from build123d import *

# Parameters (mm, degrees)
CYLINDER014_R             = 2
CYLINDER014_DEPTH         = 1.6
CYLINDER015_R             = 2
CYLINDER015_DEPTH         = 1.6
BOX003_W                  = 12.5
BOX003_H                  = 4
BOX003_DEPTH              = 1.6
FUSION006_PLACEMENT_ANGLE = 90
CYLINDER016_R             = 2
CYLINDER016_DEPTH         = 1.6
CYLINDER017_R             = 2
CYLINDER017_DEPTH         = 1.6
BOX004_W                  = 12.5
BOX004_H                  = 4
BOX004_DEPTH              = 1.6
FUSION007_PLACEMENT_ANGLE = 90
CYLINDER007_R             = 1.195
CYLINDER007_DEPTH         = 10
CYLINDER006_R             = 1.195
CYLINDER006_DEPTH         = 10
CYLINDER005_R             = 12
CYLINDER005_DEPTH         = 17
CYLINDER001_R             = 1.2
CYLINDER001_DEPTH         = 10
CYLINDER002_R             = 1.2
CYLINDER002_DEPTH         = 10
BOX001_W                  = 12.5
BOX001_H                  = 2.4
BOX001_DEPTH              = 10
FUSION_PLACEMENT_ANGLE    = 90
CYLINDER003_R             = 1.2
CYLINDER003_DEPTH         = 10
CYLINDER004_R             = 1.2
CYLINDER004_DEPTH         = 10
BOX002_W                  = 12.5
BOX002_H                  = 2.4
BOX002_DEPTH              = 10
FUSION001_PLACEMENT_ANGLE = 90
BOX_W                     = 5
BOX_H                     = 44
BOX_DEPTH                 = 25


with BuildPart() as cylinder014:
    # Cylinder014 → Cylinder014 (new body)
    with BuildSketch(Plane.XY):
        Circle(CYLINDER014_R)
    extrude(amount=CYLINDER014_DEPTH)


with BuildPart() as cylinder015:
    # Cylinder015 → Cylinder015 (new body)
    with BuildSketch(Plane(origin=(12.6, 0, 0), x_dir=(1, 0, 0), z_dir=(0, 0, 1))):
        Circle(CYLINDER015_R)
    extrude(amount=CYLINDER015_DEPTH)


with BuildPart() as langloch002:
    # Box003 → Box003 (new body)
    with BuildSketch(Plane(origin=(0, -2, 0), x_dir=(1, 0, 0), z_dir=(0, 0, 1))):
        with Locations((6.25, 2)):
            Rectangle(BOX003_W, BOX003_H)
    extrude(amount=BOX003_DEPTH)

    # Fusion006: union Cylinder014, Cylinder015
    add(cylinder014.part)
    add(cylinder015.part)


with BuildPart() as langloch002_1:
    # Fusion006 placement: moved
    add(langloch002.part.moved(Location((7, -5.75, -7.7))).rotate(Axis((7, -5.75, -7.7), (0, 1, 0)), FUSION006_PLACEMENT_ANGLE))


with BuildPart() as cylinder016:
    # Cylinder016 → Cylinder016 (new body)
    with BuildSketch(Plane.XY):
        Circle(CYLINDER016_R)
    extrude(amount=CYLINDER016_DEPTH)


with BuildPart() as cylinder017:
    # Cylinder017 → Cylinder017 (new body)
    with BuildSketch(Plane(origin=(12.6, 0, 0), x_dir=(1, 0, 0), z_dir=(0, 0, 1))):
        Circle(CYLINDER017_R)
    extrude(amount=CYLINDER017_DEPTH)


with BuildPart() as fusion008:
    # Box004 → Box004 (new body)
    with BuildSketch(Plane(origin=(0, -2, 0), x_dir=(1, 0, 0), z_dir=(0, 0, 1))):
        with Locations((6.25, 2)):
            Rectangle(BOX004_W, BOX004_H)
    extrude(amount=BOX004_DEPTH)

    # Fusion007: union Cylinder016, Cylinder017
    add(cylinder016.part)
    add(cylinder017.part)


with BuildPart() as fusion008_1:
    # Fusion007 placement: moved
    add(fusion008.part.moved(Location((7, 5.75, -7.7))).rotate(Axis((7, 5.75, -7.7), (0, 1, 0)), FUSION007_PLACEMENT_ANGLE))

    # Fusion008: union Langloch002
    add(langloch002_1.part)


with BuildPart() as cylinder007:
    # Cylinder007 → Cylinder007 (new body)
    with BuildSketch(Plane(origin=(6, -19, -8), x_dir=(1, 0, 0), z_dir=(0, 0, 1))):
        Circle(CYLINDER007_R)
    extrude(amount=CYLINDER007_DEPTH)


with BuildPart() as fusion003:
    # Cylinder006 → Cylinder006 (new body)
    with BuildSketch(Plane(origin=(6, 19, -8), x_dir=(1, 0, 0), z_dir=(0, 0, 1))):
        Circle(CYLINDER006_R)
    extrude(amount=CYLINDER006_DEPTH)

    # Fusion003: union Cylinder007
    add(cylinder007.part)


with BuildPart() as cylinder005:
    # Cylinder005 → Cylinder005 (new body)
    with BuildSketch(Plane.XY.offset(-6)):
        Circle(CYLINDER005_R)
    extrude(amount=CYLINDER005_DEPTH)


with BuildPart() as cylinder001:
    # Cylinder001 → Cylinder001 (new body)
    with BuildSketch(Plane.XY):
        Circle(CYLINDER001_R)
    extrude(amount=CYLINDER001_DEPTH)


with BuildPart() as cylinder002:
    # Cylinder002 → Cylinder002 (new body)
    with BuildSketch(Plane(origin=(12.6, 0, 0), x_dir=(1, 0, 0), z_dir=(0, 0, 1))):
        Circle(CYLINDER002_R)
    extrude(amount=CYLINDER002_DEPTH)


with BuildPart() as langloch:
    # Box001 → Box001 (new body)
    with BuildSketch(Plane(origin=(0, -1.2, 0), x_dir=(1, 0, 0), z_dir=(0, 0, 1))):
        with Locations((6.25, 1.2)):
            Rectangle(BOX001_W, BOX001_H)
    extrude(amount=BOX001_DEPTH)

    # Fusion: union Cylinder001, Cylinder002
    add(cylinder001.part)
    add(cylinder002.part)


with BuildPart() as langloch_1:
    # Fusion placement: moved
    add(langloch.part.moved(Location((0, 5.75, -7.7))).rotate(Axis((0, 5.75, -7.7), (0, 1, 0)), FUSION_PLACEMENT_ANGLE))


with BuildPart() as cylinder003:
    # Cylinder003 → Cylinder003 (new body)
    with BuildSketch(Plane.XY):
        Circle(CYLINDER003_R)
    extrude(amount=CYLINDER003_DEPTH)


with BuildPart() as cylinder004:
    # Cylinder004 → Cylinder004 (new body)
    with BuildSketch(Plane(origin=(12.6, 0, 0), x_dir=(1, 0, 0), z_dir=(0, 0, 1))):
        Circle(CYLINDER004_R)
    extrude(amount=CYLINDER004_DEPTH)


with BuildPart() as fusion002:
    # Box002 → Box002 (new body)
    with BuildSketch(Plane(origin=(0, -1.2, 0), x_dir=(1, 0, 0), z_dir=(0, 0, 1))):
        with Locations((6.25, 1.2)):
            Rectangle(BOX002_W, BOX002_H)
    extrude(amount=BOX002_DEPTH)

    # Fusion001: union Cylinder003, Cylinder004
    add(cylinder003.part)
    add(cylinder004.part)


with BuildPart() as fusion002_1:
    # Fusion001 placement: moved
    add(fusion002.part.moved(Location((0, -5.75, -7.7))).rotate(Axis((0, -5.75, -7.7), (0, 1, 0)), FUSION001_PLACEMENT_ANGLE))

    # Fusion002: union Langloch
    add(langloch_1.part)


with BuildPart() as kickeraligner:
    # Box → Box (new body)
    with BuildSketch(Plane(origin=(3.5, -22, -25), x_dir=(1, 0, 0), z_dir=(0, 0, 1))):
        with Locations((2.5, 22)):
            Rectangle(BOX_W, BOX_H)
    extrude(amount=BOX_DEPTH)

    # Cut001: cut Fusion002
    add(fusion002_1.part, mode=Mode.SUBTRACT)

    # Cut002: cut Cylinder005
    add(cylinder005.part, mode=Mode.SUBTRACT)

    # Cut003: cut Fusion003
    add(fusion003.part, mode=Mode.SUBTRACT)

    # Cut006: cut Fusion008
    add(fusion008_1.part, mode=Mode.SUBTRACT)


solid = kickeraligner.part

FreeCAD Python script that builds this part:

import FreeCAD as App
import Part
import Sketcher
from FreeCAD import Vector

doc = App.newDocument("Part")
params = doc.addObject("Spreadsheet::Sheet", "Params")
for row, (alias, value) in enumerate([
    ("sketch1_diameter", "4 mm"),
    ("pad1_length", "1.6 mm"),
    ("sketch2_diameter", "4 mm"),
    ("pad2_length", "1.6 mm"),
    ("sketch3_height", "4 mm"),
    ("sketch3_width", "12.5 mm"),
    ("pad3_length", "1.6 mm"),
    ("sketch4_diameter", "4 mm"),
    ("pad4_length", "1.6 mm"),
    ("sketch5_diameter", "4 mm"),
    ("pad5_length", "1.6 mm"),
    ("sketch6_height", "4 mm"),
    ("sketch6_width", "12.5 mm"),
    ("pad6_length", "1.6 mm"),
    ("sketch7_diameter", "2.39 mm"),
    ("pad7_length", "10 mm"),
    ("sketch8_diameter", "2.39 mm"),
    ("pad8_length", "10 mm"),
    ("sketch9_diameter", "24 mm"),
    ("pad9_length", "17 mm"),
    ("sketch10_diameter", "2.4 mm"),
    ("pad10_length", "10 mm"),
    ("sketch11_diameter", "2.4 mm"),
    ("pad11_length", "10 mm"),
    ("sketch12_width", "12.5 mm"),
    ("sketch12_height", "2.4 mm"),
    ("pad12_length", "10 mm"),
    ("sketch13_diameter", "2.4 mm"),
    ("pad13_length", "10 mm"),
    ("sketch14_diameter", "2.4 mm"),
    ("pad14_length", "10 mm"),
    ("sketch15_width", "12.5 mm"),
    ("sketch15_height", "2.4 mm"),
    ("pad15_length", "10 mm"),
    ("sketch16_width", "5 mm"),
    ("sketch16_height", "44 mm"),
    ("pad16_length", "25 mm"),
], start=1):
    params.set(f"A{row}", alias)
    params.set(f"B{row}", "=" + value)
    params.setAlias(f"B{row}", alias)

body = doc.addObject("PartDesign::Body", "Body")

# Sketch on XY plane
sketch1 = body.newObject("Sketcher::SketchObject", "Sketch")
sketch1.AttachmentSupport = (doc.getObject("XY_Plane"), [""])
sketch1.MapMode = "FlatFace"
sketch1.addGeometry(Part.Circle(Vector(0, 0, 0), Vector(0, 0, 1), 2), False)
sketch1.addConstraint(Sketcher.Constraint("Coincident", 0, 3, -1, 1))
sketch1.addConstraint(Sketcher.Constraint("Diameter", 0, 4.0))
sketch1.setExpression("Constraints[1]", "Params.sketch1_diameter")
pad1 = body.newObject("PartDesign::Pad", "Pad")
pad1.Profile = sketch1
pad1.setExpression("Length", "Params.pad1_length")
body2 = doc.addObject("PartDesign::Body", "Body001")

# Sketch on XY plane
sketch2 = body2.newObject("Sketcher::SketchObject", "Sketch001")
sketch2.AttachmentSupport = (doc.getObject("XY_Plane001"), [""])
sketch2.MapMode = "FlatFace"
sketch2.addGeometry(Part.Circle(Vector(12.6, 0, 0), Vector(0, 0, 1), 2), False)
sketch2.addConstraint(Sketcher.Constraint("PointOnObject", 0, 3, -1))
sketch2.addConstraint(Sketcher.Constraint("Diameter", 0, 4.0))
sketch2.addConstraint(Sketcher.Constraint("DistanceX", -1, 1, 0, 3, 12.6))
sketch2.setExpression("Constraints[1]", "Params.sketch2_diameter")
pad2 = body2.newObject("PartDesign::Pad", "Pad001")
pad2.Profile = sketch2
pad2.setExpression("Length", "Params.pad2_length")
body3 = doc.addObject("PartDesign::Body", "Body002")

# Sketch on XY plane
sketch3 = body3.newObject("Sketcher::SketchObject", "Sketch002")
sketch3.AttachmentSupport = (doc.getObject("XY_Plane002"), [""])
sketch3.MapMode = "FlatFace"
sketch3.addGeometry(Part.LineSegment(Vector(0, 2, 0), Vector(0, -2, 0)), False)
sketch3.addGeometry(Part.LineSegment(Vector(0, -2, 0), Vector(12.5, -2, 0)), False)
sketch3.addGeometry(Part.LineSegment(Vector(12.5, -2, 0), Vector(12.5, 2, 0)), False)
sketch3.addGeometry(Part.LineSegment(Vector(12.5, 2, 0), Vector(0, 2, 0)), False)
sketch3.addConstraint(Sketcher.Constraint("Coincident", 0, 2, 1, 1))
sketch3.addConstraint(Sketcher.Constraint("Coincident", 1, 2, 2, 1))
sketch3.addConstraint(Sketcher.Constraint("Coincident", 2, 2, 3, 1))
sketch3.addConstraint(Sketcher.Constraint("Coincident", 3, 2, 0, 1))
sketch3.addConstraint(Sketcher.Constraint("Vertical", 0))
sketch3.addConstraint(Sketcher.Constraint("Horizontal", 1))
sketch3.addConstraint(Sketcher.Constraint("Vertical", 2))
sketch3.addConstraint(Sketcher.Constraint("Horizontal", 3))
sketch3.addConstraint(Sketcher.Constraint("Symmetric", 0, 2, 3, 2, -1, 1))
sketch3.addConstraint(Sketcher.Constraint("DistanceY", 0, 2, 0, 1, 4.0))
sketch3.addConstraint(Sketcher.Constraint("DistanceX", 1, 1, 1, 2, 12.5))
sketch3.setExpression("Constraints[9]", "Params.sketch3_height")
sketch3.setExpression("Constraints[10]", "Params.sketch3_width")
pad3 = body3.newObject("PartDesign::Pad", "Pad002")
pad3.Profile = sketch3
pad3.setExpression("Length", "Params.pad3_length")
doc.recompute()

boolean = body3.newObject("PartDesign::Boolean", "Boolean")
boolean.Type = "Fuse"
boolean.addObjects([body])
doc.recompute()

boolean2 = body3.newObject("PartDesign::Boolean", "Boolean001")
boolean2.Type = "Fuse"
boolean2.addObjects([body2])
body4 = doc.addObject("PartDesign::Body", "Body003")
doc.recompute()

body3.Placement = App.Placement(Vector(7, -5.75, -7.7), App.Rotation(Vector(0, 1, 0), 90))
boolean3 = body4.newObject("PartDesign::Boolean", "Boolean002")
boolean3.Type = "Fuse"
boolean3.addObjects([body3])
body5 = doc.addObject("PartDesign::Body", "Body004")

# Sketch on XY plane
sketch4 = body5.newObject("Sketcher::SketchObject", "Sketch003")
sketch4.AttachmentSupport = (doc.getObject("XY_Plane004"), [""])
sketch4.MapMode = "FlatFace"
sketch4.addGeometry(Part.Circle(Vector(0, 0, 0), Vector(0, 0, 1), 2), False)
sketch4.addConstraint(Sketcher.Constraint("Coincident", 0, 3, -1, 1))
sketch4.addConstraint(Sketcher.Constraint("Diameter", 0, 4.0))
sketch4.setExpression("Constraints[1]", "Params.sketch4_diameter")
pad4 = body5.newObject("PartDesign::Pad", "Pad003")
pad4.Profile = sketch4
pad4.setExpression("Length", "Params.pad4_length")
body6 = doc.addObject("PartDesign::Body", "Body005")

# Sketch on XY plane
sketch5 = body6.newObject("Sketcher::SketchObject", "Sketch004")
sketch5.AttachmentSupport = (doc.getObject("XY_Plane005"), [""])
sketch5.MapMode = "FlatFace"
sketch5.addGeometry(Part.Circle(Vector(12.6, 0, 0), Vector(0, 0, 1), 2), False)
sketch5.addConstraint(Sketcher.Constraint("PointOnObject", 0, 3, -1))
sketch5.addConstraint(Sketcher.Constraint("Diameter", 0, 4.0))
sketch5.addConstraint(Sketcher.Constraint("DistanceX", -1, 1, 0, 3, 12.6))
sketch5.setExpression("Constraints[1]", "Params.sketch5_diameter")
pad5 = body6.newObject("PartDesign::Pad", "Pad004")
pad5.Profile = sketch5
pad5.setExpression("Length", "Params.pad5_length")
body7 = doc.addObject("PartDesign::Body", "Body006")

# Sketch on XY plane
sketch6 = body7.newObject("Sketcher::SketchObject", "Sketch005")
sketch6.AttachmentSupport = (doc.getObject("XY_Plane006"), [""])
sketch6.MapMode = "FlatFace"
sketch6.addGeometry(Part.LineSegment(Vector(0, 2, 0), Vector(0, -2, 0)), False)
sketch6.addGeometry(Part.LineSegment(Vector(0, -2, 0), Vector(12.5, -2, 0)), False)
sketch6.addGeometry(Part.LineSegment(Vector(12.5, -2, 0), Vector(12.5, 2, 0)), False)
sketch6.addGeometry(Part.LineSegment(Vector(12.5, 2, 0), Vector(0, 2, 0)), False)
sketch6.addConstraint(Sketcher.Constraint("Coincident", 0, 2, 1, 1))
sketch6.addConstraint(Sketcher.Constraint("Coincident", 1, 2, 2, 1))
sketch6.addConstraint(Sketcher.Constraint("Coincident", 2, 2, 3, 1))
sketch6.addConstraint(Sketcher.Constraint("Coincident", 3, 2, 0, 1))
sketch6.addConstraint(Sketcher.Constraint("Vertical", 0))
sketch6.addConstraint(Sketcher.Constraint("Horizontal", 1))
sketch6.addConstraint(Sketcher.Constraint("Vertical", 2))
sketch6.addConstraint(Sketcher.Constraint("Horizontal", 3))
sketch6.addConstraint(Sketcher.Constraint("Symmetric", 0, 2, 3, 2, -1, 1))
sketch6.addConstraint(Sketcher.Constraint("DistanceY", 0, 2, 0, 1, 4.0))
sketch6.addConstraint(Sketcher.Constraint("DistanceX", 1, 1, 1, 2, 12.5))
sketch6.setExpression("Constraints[9]", "Params.sketch6_height")
sketch6.setExpression("Constraints[10]", "Params.sketch6_width")
pad6 = body7.newObject("PartDesign::Pad", "Pad005")
pad6.Profile = sketch6
pad6.setExpression("Length", "Params.pad6_length")
doc.recompute()

boolean4 = body7.newObject("PartDesign::Boolean", "Boolean003")
boolean4.Type = "Fuse"
boolean4.addObjects([body5])
doc.recompute()

boolean5 = body7.newObject("PartDesign::Boolean", "Boolean004")
boolean5.Type = "Fuse"
boolean5.addObjects([body6])
body8 = doc.addObject("PartDesign::Body", "Body007")
body8.AllowCompound = True
doc.recompute()

body7.Placement = App.Placement(Vector(7, 5.75, -7.7), App.Rotation(Vector(0, 1, 0), 90))
boolean6 = body8.newObject("PartDesign::Boolean", "Boolean005")
boolean6.Type = "Fuse"
boolean6.addObjects([body7])
doc.recompute()

boolean7 = body8.newObject("PartDesign::Boolean", "Boolean006")
boolean7.Type = "Fuse"
boolean7.addObjects([body4])
body9 = doc.addObject("PartDesign::Body", "Body008")

# Sketch on XY plane
sketch7 = body9.newObject("Sketcher::SketchObject", "Sketch006")
sketch7.AttachmentSupport = (doc.getObject("XY_Plane008"), [""])
sketch7.MapMode = "FlatFace"
sketch7.AttachmentOffset = App.Placement(Vector(0, 0, -8), App.Rotation())
sketch7.addGeometry(Part.Circle(Vector(6, -19, 0), Vector(0, 0, 1), 1.2), False)
sketch7.addConstraint(Sketcher.Constraint("Diameter", 0, 2.39))
sketch7.addConstraint(Sketcher.Constraint("DistanceX", -1, 1, 0, 3, 6.0))
sketch7.addConstraint(Sketcher.Constraint("DistanceY", 0, 3, -1, 1, 19.0))
sketch7.setExpression("Constraints[0]", "Params.sketch7_diameter")
pad7 = body9.newObject("PartDesign::Pad", "Pad006")
pad7.Profile = sketch7
pad7.setExpression("Length", "Params.pad7_length")
body10 = doc.addObject("PartDesign::Body", "Body009")
body10.AllowCompound = True

# Sketch on XY plane
sketch8 = body10.newObject("Sketcher::SketchObject", "Sketch007")
sketch8.AttachmentSupport = (doc.getObject("XY_Plane009"), [""])
sketch8.MapMode = "FlatFace"
sketch8.AttachmentOffset = App.Placement(Vector(0, 0, -8), App.Rotation())
sketch8.addGeometry(Part.Circle(Vector(6, 19, 0), Vector(0, 0, 1), 1.2), False)
sketch8.addConstraint(Sketcher.Constraint("Diameter", 0, 2.39))
sketch8.addConstraint(Sketcher.Constraint("DistanceX", -1, 1, 0, 3, 6.0))
sketch8.addConstraint(Sketcher.Constraint("DistanceY", -1, 1, 0, 3, 19.0))
sketch8.setExpression("Constraints[0]", "Params.sketch8_diameter")
pad8 = body10.newObject("PartDesign::Pad", "Pad007")
pad8.Profile = sketch8
pad8.setExpression("Length", "Params.pad8_length")
doc.recompute()

boolean8 = body10.newObject("PartDesign::Boolean", "Boolean007")
boolean8.Type = "Fuse"
boolean8.addObjects([body9])
body11 = doc.addObject("PartDesign::Body", "Body010")

# Sketch on XY plane
sketch9 = body11.newObject("Sketcher::SketchObject", "Sketch008")
sketch9.AttachmentSupport = (doc.getObject("XY_Plane010"), [""])
sketch9.MapMode = "FlatFace"
sketch9.AttachmentOffset = App.Placement(Vector(0, 0, -6), App.Rotation())
sketch9.addGeometry(Part.Circle(Vector(0, 0, 0), Vector(0, 0, 1), 12), False)
sketch9.addConstraint(Sketcher.Constraint("Coincident", 0, 3, -1, 1))
sketch9.addConstraint(Sketcher.Constraint("Diameter", 0, 24.0))
sketch9.setExpression("Constraints[1]", "Params.sketch9_diameter")
pad9 = body11.newObject("PartDesign::Pad", "Pad008")
pad9.Profile = sketch9
pad9.setExpression("Length", "Params.pad9_length")
body12 = doc.addObject("PartDesign::Body", "Body011")

# Sketch on XY plane
sketch10 = body12.newObject("Sketcher::SketchObject", "Sketch009")
sketch10.AttachmentSupport = (doc.getObject("XY_Plane011"), [""])
sketch10.MapMode = "FlatFace"
sketch10.addGeometry(Part.Circle(Vector(0, 0, 0), Vector(0, 0, 1), 1.2), False)
sketch10.addConstraint(Sketcher.Constraint("Coincident", 0, 3, -1, 1))
sketch10.addConstraint(Sketcher.Constraint("Diameter", 0, 2.4))
sketch10.setExpression("Constraints[1]", "Params.sketch10_diameter")
pad10 = body12.newObject("PartDesign::Pad", "Pad009")
pad10.Profile = sketch10
pad10.setExpression("Length", "Params.pad10_length")
body13 = doc.addObject("PartDesign::Body", "Body012")

# Sketch on XY plane
sketch11 = body13.newObject("Sketcher::SketchObject", "Sketch010")
sketch11.AttachmentSupport = (doc.getObject("XY_Plane012"), [""])
sketch11.MapMode = "FlatFace"
sketch11.addGeometry(Part.Circle(Vector(12.6, 0, 0), Vector(0, 0, 1), 1.2), False)
sketch11.addConstraint(Sketcher.Constraint("PointOnObject", 0, 3, -1))
sketch11.addConstraint(Sketcher.Constraint("Diameter", 0, 2.4))
sketch11.addConstraint(Sketcher.Constraint("DistanceX", -1, 1, 0, 3, 12.6))
sketch11.setExpression("Constraints[1]", "Params.sketch11_diameter")
pad11 = body13.newObject("PartDesign::Pad", "Pad010")
pad11.Profile = sketch11
pad11.setExpression("Length", "Params.pad11_length")
body14 = doc.addObject("PartDesign::Body", "Body013")

# Sketch on XY plane
sketch12 = body14.newObject("Sketcher::SketchObject", "Sketch011")
sketch12.AttachmentSupport = (doc.getObject("XY_Plane013"), [""])
sketch12.MapMode = "FlatFace"
sketch12.addGeometry(Part.LineSegment(Vector(0, 1.2, 0), Vector(0, -1.2, 0)), False)
sketch12.addGeometry(Part.LineSegment(Vector(0, -1.2, 0), Vector(12.5, -1.2, 0)), False)
sketch12.addGeometry(Part.LineSegment(Vector(12.5, -1.2, 0), Vector(12.5, 1.2, 0)), False)
sketch12.addGeometry(Part.LineSegment(Vector(12.5, 1.2, 0), Vector(0, 1.2, 0)), False)
sketch12.addConstraint(Sketcher.Constraint("Coincident", 0, 2, 1, 1))
sketch12.addConstraint(Sketcher.Constraint("Coincident", 1, 2, 2, 1))
sketch12.addConstraint(Sketcher.Constraint("Coincident", 2, 2, 3, 1))
sketch12.addConstraint(Sketcher.Constraint("Coincident", 3, 2, 0, 1))
sketch12.addConstraint(Sketcher.Constraint("Vertical", 0))
sketch12.addConstraint(Sketcher.Constraint("Horizontal", 1))
sketch12.addConstraint(Sketcher.Constraint("Vertical", 2))
sketch12.addConstraint(Sketcher.Constraint("Horizontal", 3))
sketch12.addConstraint(Sketcher.Constraint("Symmetric", 0, 2, 3, 2, -1, 1))
sketch12.addConstraint(Sketcher.Constraint("DistanceX", 1, 1, 1, 2, 12.5))
sketch12.addConstraint(Sketcher.Constraint("DistanceY", 0, 2, 0, 1, 2.4))
sketch12.setExpression("Constraints[9]", "Params.sketch12_width")
sketch12.setExpression("Constraints[10]", "Params.sketch12_height")
pad12 = body14.newObject("PartDesign::Pad", "Pad011")
pad12.Profile = sketch12
pad12.setExpression("Length", "Params.pad12_length")
doc.recompute()

boolean9 = body14.newObject("PartDesign::Boolean", "Boolean008")
boolean9.Type = "Fuse"
boolean9.addObjects([body12])
doc.recompute()

boolean10 = body14.newObject("PartDesign::Boolean", "Boolean009")
boolean10.Type = "Fuse"
boolean10.addObjects([body13])
body15 = doc.addObject("PartDesign::Body", "Body014")
doc.recompute()

body14.Placement = App.Placement(Vector(0, 5.75, -7.7), App.Rotation(Vector(0, 1, 0), 90))
boolean11 = body15.newObject("PartDesign::Boolean", "Boolean010")
boolean11.Type = "Fuse"
boolean11.addObjects([body14])
body16 = doc.addObject("PartDesign::Body", "Body015")

# Sketch on XY plane
sketch13 = body16.newObject("Sketcher::SketchObject", "Sketch012")
sketch13.AttachmentSupport = (doc.getObject("XY_Plane015"), [""])
sketch13.MapMode = "FlatFace"
sketch13.addGeometry(Part.Circle(Vector(0, 0, 0), Vector(0, 0, 1), 1.2), False)
sketch13.addConstraint(Sketcher.Constraint("Coincident", 0, 3, -1, 1))
sketch13.addConstraint(Sketcher.Constraint("Diameter", 0, 2.4))
sketch13.setExpression("Constraints[1]", "Params.sketch13_diameter")
pad13 = body16.newObject("PartDesign::Pad", "Pad012")
pad13.Profile = sketch13
pad13.setExpression("Length", "Params.pad13_length")
body17 = doc.addObject("PartDesign::Body", "Body016")

# Sketch on XY plane
sketch14 = body17.newObject("Sketcher::SketchObject", "Sketch013")
sketch14.AttachmentSupport = (doc.getObject("XY_Plane016"), [""])
sketch14.MapMode = "FlatFace"
sketch14.addGeometry(Part.Circle(Vector(12.6, 0, 0), Vector(0, 0, 1), 1.2), False)
sketch14.addConstraint(Sketcher.Constraint("PointOnObject", 0, 3, -1))
sketch14.addConstraint(Sketcher.Constraint("Diameter", 0, 2.4))
sketch14.addConstraint(Sketcher.Constraint("DistanceX", -1, 1, 0, 3, 12.6))
sketch14.setExpression("Constraints[1]", "Params.sketch14_diameter")
pad14 = body17.newObject("PartDesign::Pad", "Pad013")
pad14.Profile = sketch14
pad14.setExpression("Length", "Params.pad14_length")
body18 = doc.addObject("PartDesign::Body", "Body017")

# Sketch on XY plane
sketch15 = body18.newObject("Sketcher::SketchObject", "Sketch014")
sketch15.AttachmentSupport = (doc.getObject("XY_Plane017"), [""])
sketch15.MapMode = "FlatFace"
sketch15.addGeometry(Part.LineSegment(Vector(0, 1.2, 0), Vector(0, -1.2, 0)), False)
sketch15.addGeometry(Part.LineSegment(Vector(0, -1.2, 0), Vector(12.5, -1.2, 0)), False)
sketch15.addGeometry(Part.LineSegment(Vector(12.5, -1.2, 0), Vector(12.5, 1.2, 0)), False)
sketch15.addGeometry(Part.LineSegment(Vector(12.5, 1.2, 0), Vector(0, 1.2, 0)), False)
sketch15.addConstraint(Sketcher.Constraint("Coincident", 0, 2, 1, 1))
sketch15.addConstraint(Sketcher.Constraint("Coincident", 1, 2, 2, 1))
sketch15.addConstraint(Sketcher.Constraint("Coincident", 2, 2, 3, 1))
sketch15.addConstraint(Sketcher.Constraint("Coincident", 3, 2, 0, 1))
sketch15.addConstraint(Sketcher.Constraint("Vertical", 0))
sketch15.addConstraint(Sketcher.Constraint("Horizontal", 1))
sketch15.addConstraint(Sketcher.Constraint("Vertical", 2))
sketch15.addConstraint(Sketcher.Constraint("Horizontal", 3))
sketch15.addConstraint(Sketcher.Constraint("Symmetric", 0, 2, 3, 2, -1, 1))
sketch15.addConstraint(Sketcher.Constraint("DistanceX", 1, 1, 1, 2, 12.5))
sketch15.addConstraint(Sketcher.Constraint("DistanceY", 0, 2, 0, 1, 2.4))
sketch15.setExpression("Constraints[9]", "Params.sketch15_width")
sketch15.setExpression("Constraints[10]", "Params.sketch15_height")
pad15 = body18.newObject("PartDesign::Pad", "Pad014")
pad15.Profile = sketch15
pad15.setExpression("Length", "Params.pad15_length")
doc.recompute()

boolean12 = body18.newObject("PartDesign::Boolean", "Boolean011")
boolean12.Type = "Fuse"
boolean12.addObjects([body16])
doc.recompute()

boolean13 = body18.newObject("PartDesign::Boolean", "Boolean012")
boolean13.Type = "Fuse"
boolean13.addObjects([body17])
body19 = doc.addObject("PartDesign::Body", "Body018")
body19.AllowCompound = True
doc.recompute()

body18.Placement = App.Placement(Vector(0, -5.75, -7.7), App.Rotation(Vector(0, 1, 0), 90))
boolean14 = body19.newObject("PartDesign::Boolean", "Boolean013")
boolean14.Type = "Fuse"
boolean14.addObjects([body18])
doc.recompute()

boolean15 = body19.newObject("PartDesign::Boolean", "Boolean014")
boolean15.Type = "Fuse"
boolean15.addObjects([body15])
body20 = doc.addObject("PartDesign::Body", "Body019")

# Sketch on XY plane
sketch16 = body20.newObject("Sketcher::SketchObject", "Sketch015")
sketch16.AttachmentSupport = (doc.getObject("XY_Plane019"), [""])
sketch16.MapMode = "FlatFace"
sketch16.AttachmentOffset = App.Placement(Vector(0, 0, -25), App.Rotation())
sketch16.addGeometry(Part.LineSegment(Vector(4, 22, 0), Vector(4, -22, 0)), False)
sketch16.addGeometry(Part.LineSegment(Vector(4, -22, 0), Vector(8, -22, 0)), False)
sketch16.addGeometry(Part.LineSegment(Vector(8, -22, 0), Vector(8, 22, 0)), False)
sketch16.addGeometry(Part.LineSegment(Vector(8, 22, 0), Vector(4, 22, 0)), False)
sketch16.addConstraint(Sketcher.Constraint("Coincident", 0, 2, 1, 1))
sketch16.addConstraint(Sketcher.Constraint("Coincident", 1, 2, 2, 1))
sketch16.addConstraint(Sketcher.Constraint("Coincident", 2, 2, 3, 1))
sketch16.addConstraint(Sketcher.Constraint("Coincident", 3, 2, 0, 1))
sketch16.addConstraint(Sketcher.Constraint("Vertical", 0))
sketch16.addConstraint(Sketcher.Constraint("Horizontal", 1))
sketch16.addConstraint(Sketcher.Constraint("Vertical", 2))
sketch16.addConstraint(Sketcher.Constraint("Horizontal", 3))
sketch16.addConstraint(Sketcher.Constraint("DistanceX", 1, 1, 1, 2, 5.0))
sketch16.addConstraint(Sketcher.Constraint("DistanceY", 0, 2, 0, 1, 44.0))
sketch16.addConstraint(Sketcher.Constraint("DistanceY", 0, 2, -1, 1, 22.0))
sketch16.addConstraint(Sketcher.Constraint("DistanceX", -1, 1, 0, 2, 3.5))
sketch16.setExpression("Constraints[8]", "Params.sketch16_width")
sketch16.setExpression("Constraints[9]", "Params.sketch16_height")
pad16 = body20.newObject("PartDesign::Pad", "Pad015")
pad16.Profile = sketch16
pad16.setExpression("Length", "Params.pad16_length")
doc.recompute()

boolean16 = body20.newObject("PartDesign::Boolean", "Boolean015")
boolean16.Type = "Cut"
boolean16.addObjects([body19])
doc.recompute()

boolean17 = body20.newObject("PartDesign::Boolean", "Boolean016")
boolean17.Type = "Cut"
boolean17.addObjects([body11])
doc.recompute()

boolean18 = body20.newObject("PartDesign::Boolean", "Boolean017")
boolean18.Type = "Cut"
boolean18.addObjects([body10])
doc.recompute()

boolean19 = body20.newObject("PartDesign::Boolean", "Boolean018")
boolean19.Type = "Cut"
boolean19.addObjects([body8])

doc.recompute()
